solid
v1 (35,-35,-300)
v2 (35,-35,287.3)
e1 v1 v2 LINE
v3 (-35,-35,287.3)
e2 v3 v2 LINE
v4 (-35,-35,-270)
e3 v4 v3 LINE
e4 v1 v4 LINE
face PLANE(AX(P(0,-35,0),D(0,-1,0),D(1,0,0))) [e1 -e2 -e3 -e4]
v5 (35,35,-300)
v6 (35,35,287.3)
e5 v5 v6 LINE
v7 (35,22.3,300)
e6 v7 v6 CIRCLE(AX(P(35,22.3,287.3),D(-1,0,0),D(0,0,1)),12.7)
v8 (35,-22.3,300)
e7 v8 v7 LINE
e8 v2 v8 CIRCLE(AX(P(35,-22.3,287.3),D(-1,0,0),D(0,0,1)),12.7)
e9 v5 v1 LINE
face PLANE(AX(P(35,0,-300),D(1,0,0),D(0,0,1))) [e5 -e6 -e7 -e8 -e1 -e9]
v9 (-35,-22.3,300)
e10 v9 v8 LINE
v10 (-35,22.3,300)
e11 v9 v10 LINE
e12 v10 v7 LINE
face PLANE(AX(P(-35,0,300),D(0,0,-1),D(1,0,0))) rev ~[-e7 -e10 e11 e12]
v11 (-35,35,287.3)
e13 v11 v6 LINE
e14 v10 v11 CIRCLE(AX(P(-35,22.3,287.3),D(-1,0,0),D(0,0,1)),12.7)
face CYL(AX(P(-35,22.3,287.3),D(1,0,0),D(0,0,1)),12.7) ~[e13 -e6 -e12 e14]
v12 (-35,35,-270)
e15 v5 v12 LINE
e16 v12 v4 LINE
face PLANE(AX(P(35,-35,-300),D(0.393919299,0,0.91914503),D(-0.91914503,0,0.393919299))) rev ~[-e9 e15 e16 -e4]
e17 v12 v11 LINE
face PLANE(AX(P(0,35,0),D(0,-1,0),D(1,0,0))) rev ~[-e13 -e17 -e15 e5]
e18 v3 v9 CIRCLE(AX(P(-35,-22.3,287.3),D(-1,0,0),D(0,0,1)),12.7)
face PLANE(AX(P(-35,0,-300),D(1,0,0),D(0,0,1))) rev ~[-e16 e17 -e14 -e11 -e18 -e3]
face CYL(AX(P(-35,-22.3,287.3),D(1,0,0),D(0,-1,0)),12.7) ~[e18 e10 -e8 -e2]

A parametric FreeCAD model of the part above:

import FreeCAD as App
import Part
import Sketcher

V = App.Vector
Q = App.Units.Quantity


def edges_at(feature, points):
    """Names of the edges that pass closest to the given points."""
    edges = feature.Shape.Edges
    near = lambda p: min(range(len(edges)), key=lambda i: edges[i].distToShape(Part.Vertex(*p))[0])
    return sorted({f"Edge{near(p) + 1}" for p in points})


def add_polygon(sketch, points):
    """Adds a closed chain of lines whose ends are joined by coincident constraints."""
    first, n = sketch.GeometryCount, len(points)
    for a, b in zip(points, points[1:] + points[:1]):
        sketch.addGeometry(Part.LineSegment(App.Vector(*a, 0), App.Vector(*b, 0)), False)
    for i in range(n):
        sketch.addConstraint(Sketcher.Constraint("Coincident", first + i, 2, first + (i + 1) % n, 1))

doc = App.newDocument("Part")
body = doc.addObject("PartDesign::Body", "Body")

sketch1 = body.newObject("Sketcher::SketchObject", "Sketch")
sketch1.AttachmentSupport = (doc.getObject("XZ_Plane"), [""])
sketch1.MapMode = "FlatFace"
add_polygon(sketch1, [(-35, 300), (-35, -300), (35, -300), (35, 300)])
sketch1.addConstraint([
    Sketcher.Constraint("Vertical", 0),
    Sketcher.Constraint("Horizontal", 1),
    Sketcher.Constraint("Vertical", 2),
    Sketcher.Constraint("Horizontal", 3),
    Sketcher.Constraint("Symmetric", 0, 2, 2, 2, -1, 1),
    Sketcher.Constraint("DistanceX", 1, 1, 1, 2, Q("70 mm")),
    Sketcher.Constraint("DistanceY", 0, 2, 0, 1, Q("600 mm")),
])
pad1 = body.newObject("PartDesign::Pad", "Pad")
pad1.Profile = sketch1
pad1.Length = 70
pad1.Midplane = True
doc.recompute()

fillet = body.newObject("PartDesign::Fillet", "Fillet")
fillet.Base = (pad1, edges_at(pad1, [(0, -35, 300), (0, 35, 300)]))
fillet.Radius = 12.7

sketch2 = body.newObject("Sketcher::SketchObject", "Sketch001")
sketch2.AttachmentSupport = (doc.getObject("XZ_Plane"), [""])
sketch2.MapMode = "FlatFace"
sketch2.AttachmentOffset = App.Placement(V(0, 0, 35), App.Rotation())
add_polygon(sketch2, [(35, -300), (-35, -270), (-35, -300)])
sketch2.addConstraint([
    Sketcher.Constraint("Vertical", 1),
    Sketcher.Constraint("Horizontal", 2),
    Sketcher.Constraint("DistanceX", 2, 1, 2, 2, Q("70 mm")),
    Sketcher.Constraint("DistanceY", 1, 2, 1, 1, Q("30 mm")),
    Sketcher.Constraint("DistanceX", 0, 2, -1, 1, Q("35 mm")),
    Sketcher.Constraint("DistanceY", 0, 2, -1, 1, Q("270 mm")),
])
pocket1 = body.newObject("PartDesign::Pocket", "Pocket")
pocket1.Profile = sketch2
pocket1.Length = 144.78
pocket1.Midplane = True

doc.recompute()
